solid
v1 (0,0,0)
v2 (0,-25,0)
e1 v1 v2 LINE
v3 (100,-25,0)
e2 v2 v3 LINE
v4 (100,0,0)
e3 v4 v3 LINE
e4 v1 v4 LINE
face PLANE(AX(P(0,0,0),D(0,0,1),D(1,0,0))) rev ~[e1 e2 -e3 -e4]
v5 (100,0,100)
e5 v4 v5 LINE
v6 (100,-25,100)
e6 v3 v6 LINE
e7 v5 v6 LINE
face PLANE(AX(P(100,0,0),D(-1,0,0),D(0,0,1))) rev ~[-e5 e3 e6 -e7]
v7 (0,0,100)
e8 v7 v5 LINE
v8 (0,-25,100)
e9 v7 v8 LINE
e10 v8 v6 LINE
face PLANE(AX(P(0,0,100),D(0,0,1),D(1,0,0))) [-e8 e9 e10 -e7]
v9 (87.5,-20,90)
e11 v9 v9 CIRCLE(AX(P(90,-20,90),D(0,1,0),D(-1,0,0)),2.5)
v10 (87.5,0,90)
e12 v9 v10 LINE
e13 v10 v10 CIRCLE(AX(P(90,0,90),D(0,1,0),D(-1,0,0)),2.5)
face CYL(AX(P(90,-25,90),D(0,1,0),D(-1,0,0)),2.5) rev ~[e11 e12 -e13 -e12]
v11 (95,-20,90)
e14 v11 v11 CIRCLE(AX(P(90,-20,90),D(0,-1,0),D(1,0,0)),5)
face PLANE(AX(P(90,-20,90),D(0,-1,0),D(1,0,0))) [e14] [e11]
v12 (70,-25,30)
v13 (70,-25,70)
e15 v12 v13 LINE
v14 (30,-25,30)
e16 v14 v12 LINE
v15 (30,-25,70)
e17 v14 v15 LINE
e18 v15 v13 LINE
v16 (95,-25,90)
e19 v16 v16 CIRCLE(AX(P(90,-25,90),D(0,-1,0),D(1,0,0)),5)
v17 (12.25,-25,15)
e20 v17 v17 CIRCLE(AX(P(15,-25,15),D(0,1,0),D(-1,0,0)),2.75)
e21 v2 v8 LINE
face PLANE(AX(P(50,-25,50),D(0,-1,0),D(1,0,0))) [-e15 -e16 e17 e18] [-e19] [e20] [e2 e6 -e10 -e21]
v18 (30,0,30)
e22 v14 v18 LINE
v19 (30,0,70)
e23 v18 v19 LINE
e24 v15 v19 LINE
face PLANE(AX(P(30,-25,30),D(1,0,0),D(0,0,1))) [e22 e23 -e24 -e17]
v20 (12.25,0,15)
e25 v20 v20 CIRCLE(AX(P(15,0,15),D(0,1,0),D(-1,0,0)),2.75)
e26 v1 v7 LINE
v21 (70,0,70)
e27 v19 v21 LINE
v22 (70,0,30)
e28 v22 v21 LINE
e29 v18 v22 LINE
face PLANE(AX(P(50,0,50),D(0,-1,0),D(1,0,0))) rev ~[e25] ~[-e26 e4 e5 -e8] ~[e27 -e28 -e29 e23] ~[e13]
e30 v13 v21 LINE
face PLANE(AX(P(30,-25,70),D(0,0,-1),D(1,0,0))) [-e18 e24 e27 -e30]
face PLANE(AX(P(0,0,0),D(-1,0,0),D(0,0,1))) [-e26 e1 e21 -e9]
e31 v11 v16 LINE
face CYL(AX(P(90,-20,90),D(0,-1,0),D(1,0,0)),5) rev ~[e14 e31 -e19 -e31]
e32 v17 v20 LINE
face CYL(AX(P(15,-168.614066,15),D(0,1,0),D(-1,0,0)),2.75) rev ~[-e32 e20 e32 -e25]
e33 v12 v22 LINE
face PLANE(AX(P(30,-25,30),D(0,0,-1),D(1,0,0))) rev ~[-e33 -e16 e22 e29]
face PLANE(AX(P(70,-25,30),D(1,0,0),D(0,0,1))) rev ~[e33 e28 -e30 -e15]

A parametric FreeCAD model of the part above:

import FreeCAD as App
import Part
import Sketcher

V = App.Vector
Q = App.Units.Quantity

doc = App.newDocument("Part")
body = doc.addObject("PartDesign::Body", "Body")

# Sketch on XZ plane
sketch1 = body.newObject("Sketcher::SketchObject", "Sketch")
sketch1.AttachmentSupport = (doc.getObject("XZ_Plane"), [""])
sketch1.MapMode = "FlatFace"
sketch1.addGeometry([
    Part.LineSegment(V(0, 100, 0), V(0, 0, 0)),
    Part.LineSegment(V(0, 0, 0), V(100, 0, 0)),
    Part.LineSegment(V(100, 0, 0), V(100, 100, 0)),
    Part.LineSegment(V(100, 100, 0), V(0, 100, 0)),
], False)
sketch1.addConstraint([
    Sketcher.Constraint("Coincident", 0, 2, 1, 1),
    Sketcher.Constraint("Coincident", 1, 2, 2, 1),
    Sketcher.Constraint("Coincident", 2, 2, 3, 1),
    Sketcher.Constraint("Coincident", 3, 2, 0, 1),
    Sketcher.Constraint("Vertical", 0),
    Sketcher.Constraint("Horizontal", 1),
    Sketcher.Constraint("Vertical", 2),
    Sketcher.Constraint("Horizontal", 3),
    Sketcher.Constraint("Coincident", 0, 2, -1, 1),
    Sketcher.Constraint("Equal", 3, 0),
    Sketcher.Constraint("DistanceX", 1, 1, 1, 2, Q("100 mm")),
])
pad1 = body.newObject("PartDesign::Pad", "Pad")
pad1.Profile = sketch1
pad1.Length = 25

# Sketch on XZ plane
sketch2 = body.newObject("Sketcher::SketchObject", "Sketch001")
sketch2.AttachmentSupport = (doc.getObject("XZ_Plane"), [""])
sketch2.MapMode = "FlatFace"
sketch2.AttachmentOffset = App.Placement(V(0, 0, 25), App.Rotation())
sketch2.addGeometry([
    Part.LineSegment(V(30, 70, 0), V(30, 30, 0)),
    Part.LineSegment(V(30, 30, 0), V(70, 30, 0)),
    Part.LineSegment(V(70, 30, 0), V(70, 70, 0)),
    Part.LineSegment(V(70, 70, 0), V(30, 70, 0)),
], False)
sketch2.addConstraint([
    Sketcher.Constraint("Coincident", 0, 2, 1, 1),
    Sketcher.Constraint("Coincident", 1, 2, 2, 1),
    Sketcher.Constraint("Coincident", 2, 2, 3, 1),
    Sketcher.Constraint("Coincident", 3, 2, 0, 1),
    Sketcher.Constraint("Vertical", 0),
    Sketcher.Constraint("Horizontal", 1),
    Sketcher.Constraint("Vertical", 2),
    Sketcher.Constraint("Horizontal", 3),
    Sketcher.Constraint("Equal", 3, 0),
    Sketcher.Constraint("DistanceX", 1, 1, 1, 2, Q("40 mm")),
    Sketcher.Constraint("DistanceX", -1, 1, 0, 2, Q("30 mm")),
    Sketcher.Constraint("DistanceY", -1, 1, 0, 2, Q("30 mm")),
])
pocket1 = body.newObject("PartDesign::Pocket", "Pocket")
pocket1.Profile = sketch2
pocket1.Length = 25

# Sketch on XZ plane
sketch3 = body.newObject("Sketcher::SketchObject", "Sketch002")
sketch3.AttachmentSupport = (doc.getObject("XZ_Plane"), [""])
sketch3.MapMode = "FlatFace"
sketch3.AttachmentOffset = App.Placement(V(0, 0, 25), App.Rotation())
sketch3.addGeometry(Part.Circle(V(90, 90, 0), V(0, 0, 1), 2.5), False)
sketch3.addConstraint([
    Sketcher.Constraint("Diameter", 0, Q("5 mm")),
    Sketcher.Constraint("DistanceX", -1, 1, 0, 3, Q("90 mm")),
    Sketcher.Constraint("DistanceY", -1, 1, 0, 3, Q("90 mm")),
])
doc.recompute()
hole = body.newObject("PartDesign::Hole", "Hole")
hole.Profile = sketch3
hole.ThreadType = "None"
hole.Diameter = 5
hole.DepthType = "ThroughAll"
hole.HoleCutType = "Counterbore"
hole.HoleCutDiameter = 10
hole.HoleCutDepth = 5

# Sketch on XZ plane
sketch4 = body.newObject("Sketcher::SketchObject", "Sketch003")
sketch4.AttachmentSupport = (doc.getObject("XZ_Plane"), [""])
sketch4.MapMode = "FlatFace"
sketch4.AttachmentOffset = App.Placement(V(0, 0, 25), App.Rotation())
sketch4.addGeometry(Part.Circle(V(15, 15, 0), V(0, 0, 1), 2.75), False)
sketch4.addConstraint([
    Sketcher.Constraint("Diameter", 0, Q("5.5 mm")),
    Sketcher.Constraint("DistanceX", -1, 1, 0, 3, Q("15 mm")),
    Sketcher.Constraint("DistanceY", -1, 1, 0, 3, Q("15 mm")),
])
doc.recompute()
hole2 = body.newObject("PartDesign::Hole", "Hole001")
hole2.Profile = sketch4
hole2.ThreadType = "None"
hole2.Diameter = 5.5
hole2.DepthType = "ThroughAll"

doc.recompute()
